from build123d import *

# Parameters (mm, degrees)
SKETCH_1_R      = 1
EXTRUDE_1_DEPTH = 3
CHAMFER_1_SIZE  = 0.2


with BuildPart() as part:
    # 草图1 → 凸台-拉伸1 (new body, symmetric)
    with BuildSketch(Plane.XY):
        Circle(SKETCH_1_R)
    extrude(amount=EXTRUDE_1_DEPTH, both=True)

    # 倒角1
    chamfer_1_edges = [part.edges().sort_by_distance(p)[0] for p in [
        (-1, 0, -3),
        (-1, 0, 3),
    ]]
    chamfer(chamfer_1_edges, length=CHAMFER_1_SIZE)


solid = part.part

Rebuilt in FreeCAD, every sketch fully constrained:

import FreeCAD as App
import Part
import Sketcher
Q = App.Units.Quantity


def edges_at(feature, points):
    """Names of the edges that pass closest to the given points."""
    edges = feature.Shape.Edges
    near = lambda p: min(range(len(edges)), key=lambda i: edges[i].distToShape(Part.Vertex(*p))[0])
    return sorted({f"Edge{near(p) + 1}" for p in points})

doc = App.newDocument("Part")
body = doc.addObject("PartDesign::Body", "Body")

# Sketch on XY plane
sketch1 = doc.addObject("Sketcher::SketchObject", "Sketch")
body.addObject(sketch1)
sketch1.AttachmentSupport = (doc.XY_Plane, [""])
sketch1.MapMode = "FlatFace"
sketch1.addGeometry(Part.Circle(App.Vector(0, 0, 0), App.Vector(0, 0, 1), 1), False)
sketch1.addConstraint([
    Sketcher.Constraint("Coincident", 0, 3, -1, 1),
    Sketcher.Constraint("Diameter", 0, Q("2 mm")),
])
pad1 = doc.addObject("PartDesign::Pad", "Pad")
body.addObject(pad1)
pad1.Profile = sketch1
pad1.Length = 6
pad1.Midplane = True
doc.recompute()

chamfer = doc.addObject("PartDesign::Chamfer", "Chamfer")
body.addObject(chamfer)
chamfer.Base = (pad1, edges_at(pad1, [(-1, 0, -3), (-1, 0, 3)]))
chamfer.Size = 0.2

doc.recompute()
